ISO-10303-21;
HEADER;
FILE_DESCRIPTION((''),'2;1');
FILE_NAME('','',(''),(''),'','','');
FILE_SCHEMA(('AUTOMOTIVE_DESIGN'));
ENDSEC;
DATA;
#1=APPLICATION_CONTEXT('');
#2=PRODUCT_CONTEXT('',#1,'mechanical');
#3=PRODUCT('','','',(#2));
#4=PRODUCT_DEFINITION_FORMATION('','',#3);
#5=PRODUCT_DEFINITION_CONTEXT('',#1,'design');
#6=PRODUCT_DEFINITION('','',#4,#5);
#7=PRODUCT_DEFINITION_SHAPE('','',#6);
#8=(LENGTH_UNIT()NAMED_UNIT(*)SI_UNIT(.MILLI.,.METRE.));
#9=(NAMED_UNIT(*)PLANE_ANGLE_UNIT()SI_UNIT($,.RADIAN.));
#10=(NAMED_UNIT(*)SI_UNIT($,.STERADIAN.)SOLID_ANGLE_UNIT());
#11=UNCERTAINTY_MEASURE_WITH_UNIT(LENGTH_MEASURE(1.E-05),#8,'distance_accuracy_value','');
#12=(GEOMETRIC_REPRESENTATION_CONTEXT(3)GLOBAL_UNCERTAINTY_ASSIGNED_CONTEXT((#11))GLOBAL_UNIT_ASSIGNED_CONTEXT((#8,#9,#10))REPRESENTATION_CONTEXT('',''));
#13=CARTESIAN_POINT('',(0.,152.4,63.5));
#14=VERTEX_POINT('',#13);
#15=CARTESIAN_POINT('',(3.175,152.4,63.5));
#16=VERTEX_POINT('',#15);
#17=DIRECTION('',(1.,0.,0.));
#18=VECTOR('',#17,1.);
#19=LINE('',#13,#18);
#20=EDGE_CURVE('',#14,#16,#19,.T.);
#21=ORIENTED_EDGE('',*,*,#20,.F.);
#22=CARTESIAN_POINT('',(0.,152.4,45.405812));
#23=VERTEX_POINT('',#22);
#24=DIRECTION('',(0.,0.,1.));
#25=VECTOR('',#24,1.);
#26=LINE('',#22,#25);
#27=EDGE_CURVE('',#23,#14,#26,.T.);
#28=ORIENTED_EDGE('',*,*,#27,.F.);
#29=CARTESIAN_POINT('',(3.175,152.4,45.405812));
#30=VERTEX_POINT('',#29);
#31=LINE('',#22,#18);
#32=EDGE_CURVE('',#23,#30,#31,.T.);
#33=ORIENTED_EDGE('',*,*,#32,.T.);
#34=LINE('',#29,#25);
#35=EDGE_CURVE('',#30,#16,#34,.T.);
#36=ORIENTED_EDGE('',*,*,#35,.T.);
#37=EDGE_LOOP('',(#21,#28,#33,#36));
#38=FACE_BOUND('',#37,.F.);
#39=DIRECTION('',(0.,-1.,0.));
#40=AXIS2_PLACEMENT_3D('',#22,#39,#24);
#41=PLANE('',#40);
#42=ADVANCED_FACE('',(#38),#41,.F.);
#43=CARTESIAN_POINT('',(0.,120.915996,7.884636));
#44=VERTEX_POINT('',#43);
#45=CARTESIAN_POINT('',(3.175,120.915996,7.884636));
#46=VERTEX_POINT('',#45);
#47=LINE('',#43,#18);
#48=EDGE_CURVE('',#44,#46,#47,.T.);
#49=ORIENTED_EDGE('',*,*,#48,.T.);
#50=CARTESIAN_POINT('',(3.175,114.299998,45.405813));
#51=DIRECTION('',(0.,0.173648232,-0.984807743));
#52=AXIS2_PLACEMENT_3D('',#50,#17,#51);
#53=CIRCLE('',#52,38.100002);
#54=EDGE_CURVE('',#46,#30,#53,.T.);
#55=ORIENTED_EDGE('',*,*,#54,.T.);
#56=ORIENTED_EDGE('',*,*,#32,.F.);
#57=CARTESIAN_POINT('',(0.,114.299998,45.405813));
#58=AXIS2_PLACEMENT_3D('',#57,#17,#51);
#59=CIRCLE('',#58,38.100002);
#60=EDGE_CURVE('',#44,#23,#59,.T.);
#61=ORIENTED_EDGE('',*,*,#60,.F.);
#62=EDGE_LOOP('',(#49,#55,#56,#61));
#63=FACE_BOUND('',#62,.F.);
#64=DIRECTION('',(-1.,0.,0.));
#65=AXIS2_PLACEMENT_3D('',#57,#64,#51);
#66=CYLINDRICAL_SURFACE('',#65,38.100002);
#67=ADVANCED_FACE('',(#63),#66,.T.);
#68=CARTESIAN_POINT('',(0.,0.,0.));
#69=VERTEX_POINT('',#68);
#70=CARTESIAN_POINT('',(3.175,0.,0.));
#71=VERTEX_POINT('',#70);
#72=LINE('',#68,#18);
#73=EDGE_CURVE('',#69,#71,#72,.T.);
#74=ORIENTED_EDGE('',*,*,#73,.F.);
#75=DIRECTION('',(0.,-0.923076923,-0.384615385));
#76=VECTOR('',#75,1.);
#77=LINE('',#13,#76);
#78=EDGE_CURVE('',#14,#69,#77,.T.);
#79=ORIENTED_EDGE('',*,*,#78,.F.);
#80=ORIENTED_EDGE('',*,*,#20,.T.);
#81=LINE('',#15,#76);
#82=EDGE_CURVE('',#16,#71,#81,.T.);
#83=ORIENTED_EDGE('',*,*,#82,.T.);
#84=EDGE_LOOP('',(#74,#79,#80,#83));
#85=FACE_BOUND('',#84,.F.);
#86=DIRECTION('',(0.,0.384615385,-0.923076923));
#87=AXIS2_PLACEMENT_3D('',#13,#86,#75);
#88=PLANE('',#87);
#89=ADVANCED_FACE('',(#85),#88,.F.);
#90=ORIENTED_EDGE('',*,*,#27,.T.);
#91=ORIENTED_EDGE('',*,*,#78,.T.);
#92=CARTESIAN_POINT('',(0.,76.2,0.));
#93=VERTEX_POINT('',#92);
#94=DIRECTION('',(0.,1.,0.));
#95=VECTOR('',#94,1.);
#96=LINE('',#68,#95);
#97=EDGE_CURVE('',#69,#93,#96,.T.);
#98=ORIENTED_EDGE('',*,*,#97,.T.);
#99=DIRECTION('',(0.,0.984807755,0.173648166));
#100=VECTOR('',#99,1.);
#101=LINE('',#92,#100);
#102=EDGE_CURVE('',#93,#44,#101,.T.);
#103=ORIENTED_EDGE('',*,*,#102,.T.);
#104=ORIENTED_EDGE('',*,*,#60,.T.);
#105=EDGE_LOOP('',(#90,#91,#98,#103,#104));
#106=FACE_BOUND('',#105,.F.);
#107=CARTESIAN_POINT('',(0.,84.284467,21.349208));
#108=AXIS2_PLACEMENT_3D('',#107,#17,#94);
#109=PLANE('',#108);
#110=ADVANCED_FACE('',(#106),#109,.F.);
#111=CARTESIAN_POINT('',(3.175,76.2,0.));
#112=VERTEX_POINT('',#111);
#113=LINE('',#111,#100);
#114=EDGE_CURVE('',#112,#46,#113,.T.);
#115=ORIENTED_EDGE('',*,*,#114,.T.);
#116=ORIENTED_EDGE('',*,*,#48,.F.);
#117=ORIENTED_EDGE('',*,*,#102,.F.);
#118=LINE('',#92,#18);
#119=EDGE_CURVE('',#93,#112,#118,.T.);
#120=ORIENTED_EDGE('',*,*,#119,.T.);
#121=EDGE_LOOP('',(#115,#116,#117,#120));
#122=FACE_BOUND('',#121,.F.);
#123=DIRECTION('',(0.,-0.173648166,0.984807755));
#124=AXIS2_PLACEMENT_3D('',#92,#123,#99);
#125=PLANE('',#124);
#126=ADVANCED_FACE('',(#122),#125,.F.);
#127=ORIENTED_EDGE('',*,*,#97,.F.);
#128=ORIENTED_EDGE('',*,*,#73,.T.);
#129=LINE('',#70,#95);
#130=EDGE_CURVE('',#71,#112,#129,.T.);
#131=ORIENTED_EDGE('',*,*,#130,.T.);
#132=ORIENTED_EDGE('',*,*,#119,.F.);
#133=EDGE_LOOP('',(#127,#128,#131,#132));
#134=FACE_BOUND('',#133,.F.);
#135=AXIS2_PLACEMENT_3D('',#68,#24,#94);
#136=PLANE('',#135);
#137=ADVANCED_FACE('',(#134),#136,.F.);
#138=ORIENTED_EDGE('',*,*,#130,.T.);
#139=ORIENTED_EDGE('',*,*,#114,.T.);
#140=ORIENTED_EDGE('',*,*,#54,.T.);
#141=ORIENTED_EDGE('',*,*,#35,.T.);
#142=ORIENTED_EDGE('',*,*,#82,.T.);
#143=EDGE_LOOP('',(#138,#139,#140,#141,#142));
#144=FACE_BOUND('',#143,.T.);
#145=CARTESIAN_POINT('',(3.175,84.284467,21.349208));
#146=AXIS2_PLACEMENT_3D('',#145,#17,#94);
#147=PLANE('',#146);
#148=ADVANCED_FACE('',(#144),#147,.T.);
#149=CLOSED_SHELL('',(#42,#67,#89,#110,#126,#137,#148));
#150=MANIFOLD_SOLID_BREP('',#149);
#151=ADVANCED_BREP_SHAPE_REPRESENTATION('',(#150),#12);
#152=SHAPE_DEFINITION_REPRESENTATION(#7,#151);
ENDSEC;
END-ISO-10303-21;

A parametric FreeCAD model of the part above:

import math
import FreeCAD as App
import Part
import Sketcher
from FreeCAD import Vector
Q = App.Units.Quantity

doc = App.newDocument("Part")
body = doc.addObject("PartDesign::Body", "Body")

# Sketch on YZ plane
sketch1 = body.newObject("Sketcher::SketchObject", "Sketch")
sketch1.AttachmentSupport = (doc.getObject("YZ_Plane"), [""])
sketch1.MapMode = "FlatFace"
sketch1.addGeometry(Part.LineSegment(Vector(152.4, 63.5, 0), Vector(0, 0, 0)), False)
sketch1.addGeometry(Part.LineSegment(Vector(0, 0, 0), Vector(76.2, 0, 0)), False)
sketch1.addGeometry(Part.LineSegment(Vector(76.2, 0, 0), Vector(120.915996, 7.884636, 0)), False)
sketch1.addGeometry(Part.ArcOfCircle(Part.Circle(Vector(114.299998, 45.405813, 0), Vector(0, 0, 1), 38.100002), math.radians(-79.999997), math.radians(-0.000001)), False)
sketch1.addGeometry(Part.LineSegment(Vector(152.4, 45.405812, 0), Vector(152.4, 63.5, 0)), False)
sketch1.addConstraint(Sketcher.Constraint("Coincident", 0, 2, 1, 1))
sketch1.addConstraint(Sketcher.Constraint("Coincident", 1, 2, 2, 1))
sketch1.addConstraint(Sketcher.Constraint("Tangent", 2, 2, 3, 1))
sketch1.addConstraint(Sketcher.Constraint("Tangent", 3, 2, 4, 1))
sketch1.addConstraint(Sketcher.Constraint("Coincident", 4, 2, 0, 1))
sketch1.addConstraint(Sketcher.Constraint("Horizontal", 1))
sketch1.addConstraint(Sketcher.Constraint("Vertical", 4))
sketch1.addConstraint(Sketcher.Constraint("Coincident", 0, 2, -1, 1))
sketch1.addConstraint(Sketcher.Constraint("Radius", 3, Q("1.5000001 in")))
sketch1.addConstraint(Sketcher.Constraint("DistanceX", 1, 1, 1, 2, Q("3 in")))
sketch1.addConstraint(Sketcher.Constraint("DistanceX", -1, 1, 3, 2, Q("6 in")))
sketch1.addConstraint(Sketcher.Constraint("Angle", 2, Q("9.999999 deg")))
sketch1.addConstraint(Sketcher.Constraint("Distance", 0, Q("6.5 in")))
pad1 = body.newObject("PartDesign::Pad", "Pad")
pad1.Profile = sketch1
pad1.Length = Q("0.125 in")

doc.recompute()
